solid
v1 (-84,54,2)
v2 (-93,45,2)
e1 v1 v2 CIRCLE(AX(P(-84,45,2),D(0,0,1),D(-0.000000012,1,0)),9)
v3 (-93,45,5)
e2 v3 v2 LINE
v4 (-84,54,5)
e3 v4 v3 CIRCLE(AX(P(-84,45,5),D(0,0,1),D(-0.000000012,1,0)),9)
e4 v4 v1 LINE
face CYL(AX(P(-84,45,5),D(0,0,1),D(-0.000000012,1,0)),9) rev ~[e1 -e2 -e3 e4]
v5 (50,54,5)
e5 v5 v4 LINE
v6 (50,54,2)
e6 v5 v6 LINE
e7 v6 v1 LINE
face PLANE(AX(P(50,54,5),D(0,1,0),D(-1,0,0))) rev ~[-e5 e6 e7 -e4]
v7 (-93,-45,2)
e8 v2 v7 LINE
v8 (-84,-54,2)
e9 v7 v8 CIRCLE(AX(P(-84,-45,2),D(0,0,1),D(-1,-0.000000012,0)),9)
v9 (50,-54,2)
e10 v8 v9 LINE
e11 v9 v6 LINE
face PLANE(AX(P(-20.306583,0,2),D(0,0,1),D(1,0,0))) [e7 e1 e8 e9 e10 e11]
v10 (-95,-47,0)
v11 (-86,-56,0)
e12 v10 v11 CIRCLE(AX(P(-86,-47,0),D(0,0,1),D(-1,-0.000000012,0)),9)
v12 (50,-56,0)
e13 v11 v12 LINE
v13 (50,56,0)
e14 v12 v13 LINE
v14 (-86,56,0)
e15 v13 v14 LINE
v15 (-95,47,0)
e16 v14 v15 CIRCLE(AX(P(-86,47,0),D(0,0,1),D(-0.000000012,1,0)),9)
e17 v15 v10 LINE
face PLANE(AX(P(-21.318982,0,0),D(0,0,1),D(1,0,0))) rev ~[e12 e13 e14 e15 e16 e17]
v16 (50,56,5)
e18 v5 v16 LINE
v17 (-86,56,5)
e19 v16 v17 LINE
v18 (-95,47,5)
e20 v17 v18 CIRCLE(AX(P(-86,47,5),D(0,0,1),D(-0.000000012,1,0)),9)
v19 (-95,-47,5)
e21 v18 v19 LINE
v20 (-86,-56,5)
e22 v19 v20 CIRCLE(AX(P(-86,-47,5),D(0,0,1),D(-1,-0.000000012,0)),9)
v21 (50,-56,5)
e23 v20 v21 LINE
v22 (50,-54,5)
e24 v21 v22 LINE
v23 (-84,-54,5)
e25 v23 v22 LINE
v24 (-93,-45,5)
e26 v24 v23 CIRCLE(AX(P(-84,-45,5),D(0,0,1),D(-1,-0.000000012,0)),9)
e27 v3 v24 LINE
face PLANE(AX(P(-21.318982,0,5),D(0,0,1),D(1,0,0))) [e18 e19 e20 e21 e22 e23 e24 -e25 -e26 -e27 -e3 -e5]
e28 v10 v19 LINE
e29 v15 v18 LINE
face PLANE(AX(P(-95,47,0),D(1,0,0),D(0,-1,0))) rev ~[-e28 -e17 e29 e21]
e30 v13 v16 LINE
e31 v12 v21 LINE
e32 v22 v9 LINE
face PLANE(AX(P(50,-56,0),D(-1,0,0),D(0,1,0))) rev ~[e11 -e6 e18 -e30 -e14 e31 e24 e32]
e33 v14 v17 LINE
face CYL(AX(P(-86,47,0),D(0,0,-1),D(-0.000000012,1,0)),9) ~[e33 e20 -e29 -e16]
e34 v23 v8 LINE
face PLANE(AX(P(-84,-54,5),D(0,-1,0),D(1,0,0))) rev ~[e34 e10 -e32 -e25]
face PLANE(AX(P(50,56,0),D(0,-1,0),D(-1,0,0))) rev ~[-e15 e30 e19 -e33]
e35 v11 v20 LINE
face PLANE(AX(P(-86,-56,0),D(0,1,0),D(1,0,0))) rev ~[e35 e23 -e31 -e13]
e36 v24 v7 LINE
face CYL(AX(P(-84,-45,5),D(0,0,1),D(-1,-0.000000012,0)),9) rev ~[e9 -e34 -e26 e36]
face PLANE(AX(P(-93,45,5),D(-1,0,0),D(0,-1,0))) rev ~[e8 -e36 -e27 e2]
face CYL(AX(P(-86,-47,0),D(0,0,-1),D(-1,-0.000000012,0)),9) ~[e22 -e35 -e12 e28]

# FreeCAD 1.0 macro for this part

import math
import FreeCAD as App
import Part
import Sketcher

V = App.Vector

doc = App.newDocument("Part")
body = doc.addObject("PartDesign::Body", "Body")

sketch1 = body.newObject("Sketcher::SketchObject", "Sketch")
sketch1.AttachmentSupport = (doc.getObject("XY_Plane"), [""])
sketch1.MapMode = "FlatFace"
sketch1.addGeometry(Part.ArcOfCircle(Part.Circle(V(-86, -47, 0), V(0, 0, 1), 9), math.radians(-180), math.radians(-90)), False)
sketch1.addGeometry(Part.LineSegment(V(-86, -56, 0), V(50, -56, 0)), False)
sketch1.addGeometry(Part.LineSegment(V(50, -56, 0), V(50, 56, 0)), False)
sketch1.addGeometry(Part.LineSegment(V(50, 56, 0), V(-86, 56, 0)), False)
sketch1.addGeometry(Part.ArcOfCircle(Part.Circle(V(-86, 47, 0), V(0, 0, 1), 9), math.radians(90), math.radians(180)), False)
sketch1.addGeometry(Part.LineSegment(V(-95, 47, 0), V(-95, -47, 0)), False)
sketch1.addConstraint(Sketcher.Constraint("Tangent", 0, 2, 1, 1))
sketch1.addConstraint(Sketcher.Constraint("Coincident", 1, 2, 2, 1))
sketch1.addConstraint(Sketcher.Constraint("Coincident", 2, 2, 3, 1))
sketch1.addConstraint(Sketcher.Constraint("Tangent", 3, 2, 4, 1))
sketch1.addConstraint(Sketcher.Constraint("Tangent", 4, 2, 5, 1))
sketch1.addConstraint(Sketcher.Constraint("Tangent", 5, 2, 0, 1))
sketch1.addConstraint(Sketcher.Constraint("Horizontal", 1))
sketch1.addConstraint(Sketcher.Constraint("Vertical", 2))
sketch1.addConstraint(Sketcher.Constraint("Horizontal", 3))
sketch1.addConstraint(Sketcher.Constraint("Vertical", 5))
sketch1.addConstraint(Sketcher.Constraint("Equal", 0, 4))
sketch1.addConstraint(Sketcher.Constraint("Radius", 0, 9.0))
sketch1.addConstraint(Sketcher.Constraint("DistanceX", 1, 1, 1, 2, 136.0))
sketch1.addConstraint(Sketcher.Constraint("DistanceY", 2, 1, 2, 2, 112.0))
sketch1.addConstraint(Sketcher.Constraint("DistanceX", 0, 3, -1, 1, 86.0))
sketch1.addConstraint(Sketcher.Constraint("DistanceY", 0, 3, -1, 1, 47.0))
pad1 = body.newObject("PartDesign::Pad", "Pad")
pad1.Profile = sketch1
pad1.Length = 5

sketch2 = body.newObject("Sketcher::SketchObject", "Sketch001")
sketch2.AttachmentSupport = (doc.getObject("XY_Plane"), [""])
sketch2.MapMode = "FlatFace"
sketch2.AttachmentOffset = App.Placement(V(0, 0, 5), App.Rotation())
sketch2.addGeometry(Part.LineSegment(V(50, -54, 0), V(50, 54, 0)), False)
sketch2.addGeometry(Part.LineSegment(V(50, 54, 0), V(-84, 54, 0)), False)
sketch2.addGeometry(Part.ArcOfCircle(Part.Circle(V(-84, 45, 0), V(0, 0, 1), 9), math.radians(90), math.radians(180)), False)
sketch2.addGeometry(Part.LineSegment(V(-93, 45, 0), V(-93, -45, 0)), False)
sketch2.addGeometry(Part.ArcOfCircle(Part.Circle(V(-84, -45, 0), V(0, 0, 1), 9), math.radians(-180), math.radians(-90)), False)
sketch2.addGeometry(Part.LineSegment(V(-84, -54, 0), V(50, -54, 0)), False)
sketch2.addConstraint(Sketcher.Constraint("Coincident", 0, 2, 1, 1))
sketch2.addConstraint(Sketcher.Constraint("Tangent", 1, 2, 2, 1))
sketch2.addConstraint(Sketcher.Constraint("Tangent", 2, 2, 3, 1))
sketch2.addConstraint(Sketcher.Constraint("Tangent", 3, 2, 4, 1))
sketch2.addConstraint(Sketcher.Constraint("Tangent", 4, 2, 5, 1))
sketch2.addConstraint(Sketcher.Constraint("Coincident", 5, 2, 0, 1))
sketch2.addConstraint(Sketcher.Constraint("Vertical", 0))
sketch2.addConstraint(Sketcher.Constraint("Horizontal", 1))
sketch2.addConstraint(Sketcher.Constraint("Vertical", 3))
sketch2.addConstraint(Sketcher.Constraint("Horizontal", 5))
sketch2.addConstraint(Sketcher.Constraint("Equal", 2, 4))
sketch2.addConstraint(Sketcher.Constraint("Radius", 2, 9.0))
sketch2.addConstraint(Sketcher.Constraint("DistanceX", 1, 2, 1, 1, 134.0))
sketch2.addConstraint(Sketcher.Constraint("DistanceY", 0, 1, 0, 2, 108.0))
sketch2.addConstraint(Sketcher.Constraint("DistanceX", 2, 3, -1, 1, 84.0))
sketch2.addConstraint(Sketcher.Constraint("DistanceY", -1, 1, 2, 3, 45.0))
pocket1 = body.newObject("PartDesign::Pocket", "Pocket")
pocket1.Profile = sketch2
pocket1.Length = 3

doc.recompute()
